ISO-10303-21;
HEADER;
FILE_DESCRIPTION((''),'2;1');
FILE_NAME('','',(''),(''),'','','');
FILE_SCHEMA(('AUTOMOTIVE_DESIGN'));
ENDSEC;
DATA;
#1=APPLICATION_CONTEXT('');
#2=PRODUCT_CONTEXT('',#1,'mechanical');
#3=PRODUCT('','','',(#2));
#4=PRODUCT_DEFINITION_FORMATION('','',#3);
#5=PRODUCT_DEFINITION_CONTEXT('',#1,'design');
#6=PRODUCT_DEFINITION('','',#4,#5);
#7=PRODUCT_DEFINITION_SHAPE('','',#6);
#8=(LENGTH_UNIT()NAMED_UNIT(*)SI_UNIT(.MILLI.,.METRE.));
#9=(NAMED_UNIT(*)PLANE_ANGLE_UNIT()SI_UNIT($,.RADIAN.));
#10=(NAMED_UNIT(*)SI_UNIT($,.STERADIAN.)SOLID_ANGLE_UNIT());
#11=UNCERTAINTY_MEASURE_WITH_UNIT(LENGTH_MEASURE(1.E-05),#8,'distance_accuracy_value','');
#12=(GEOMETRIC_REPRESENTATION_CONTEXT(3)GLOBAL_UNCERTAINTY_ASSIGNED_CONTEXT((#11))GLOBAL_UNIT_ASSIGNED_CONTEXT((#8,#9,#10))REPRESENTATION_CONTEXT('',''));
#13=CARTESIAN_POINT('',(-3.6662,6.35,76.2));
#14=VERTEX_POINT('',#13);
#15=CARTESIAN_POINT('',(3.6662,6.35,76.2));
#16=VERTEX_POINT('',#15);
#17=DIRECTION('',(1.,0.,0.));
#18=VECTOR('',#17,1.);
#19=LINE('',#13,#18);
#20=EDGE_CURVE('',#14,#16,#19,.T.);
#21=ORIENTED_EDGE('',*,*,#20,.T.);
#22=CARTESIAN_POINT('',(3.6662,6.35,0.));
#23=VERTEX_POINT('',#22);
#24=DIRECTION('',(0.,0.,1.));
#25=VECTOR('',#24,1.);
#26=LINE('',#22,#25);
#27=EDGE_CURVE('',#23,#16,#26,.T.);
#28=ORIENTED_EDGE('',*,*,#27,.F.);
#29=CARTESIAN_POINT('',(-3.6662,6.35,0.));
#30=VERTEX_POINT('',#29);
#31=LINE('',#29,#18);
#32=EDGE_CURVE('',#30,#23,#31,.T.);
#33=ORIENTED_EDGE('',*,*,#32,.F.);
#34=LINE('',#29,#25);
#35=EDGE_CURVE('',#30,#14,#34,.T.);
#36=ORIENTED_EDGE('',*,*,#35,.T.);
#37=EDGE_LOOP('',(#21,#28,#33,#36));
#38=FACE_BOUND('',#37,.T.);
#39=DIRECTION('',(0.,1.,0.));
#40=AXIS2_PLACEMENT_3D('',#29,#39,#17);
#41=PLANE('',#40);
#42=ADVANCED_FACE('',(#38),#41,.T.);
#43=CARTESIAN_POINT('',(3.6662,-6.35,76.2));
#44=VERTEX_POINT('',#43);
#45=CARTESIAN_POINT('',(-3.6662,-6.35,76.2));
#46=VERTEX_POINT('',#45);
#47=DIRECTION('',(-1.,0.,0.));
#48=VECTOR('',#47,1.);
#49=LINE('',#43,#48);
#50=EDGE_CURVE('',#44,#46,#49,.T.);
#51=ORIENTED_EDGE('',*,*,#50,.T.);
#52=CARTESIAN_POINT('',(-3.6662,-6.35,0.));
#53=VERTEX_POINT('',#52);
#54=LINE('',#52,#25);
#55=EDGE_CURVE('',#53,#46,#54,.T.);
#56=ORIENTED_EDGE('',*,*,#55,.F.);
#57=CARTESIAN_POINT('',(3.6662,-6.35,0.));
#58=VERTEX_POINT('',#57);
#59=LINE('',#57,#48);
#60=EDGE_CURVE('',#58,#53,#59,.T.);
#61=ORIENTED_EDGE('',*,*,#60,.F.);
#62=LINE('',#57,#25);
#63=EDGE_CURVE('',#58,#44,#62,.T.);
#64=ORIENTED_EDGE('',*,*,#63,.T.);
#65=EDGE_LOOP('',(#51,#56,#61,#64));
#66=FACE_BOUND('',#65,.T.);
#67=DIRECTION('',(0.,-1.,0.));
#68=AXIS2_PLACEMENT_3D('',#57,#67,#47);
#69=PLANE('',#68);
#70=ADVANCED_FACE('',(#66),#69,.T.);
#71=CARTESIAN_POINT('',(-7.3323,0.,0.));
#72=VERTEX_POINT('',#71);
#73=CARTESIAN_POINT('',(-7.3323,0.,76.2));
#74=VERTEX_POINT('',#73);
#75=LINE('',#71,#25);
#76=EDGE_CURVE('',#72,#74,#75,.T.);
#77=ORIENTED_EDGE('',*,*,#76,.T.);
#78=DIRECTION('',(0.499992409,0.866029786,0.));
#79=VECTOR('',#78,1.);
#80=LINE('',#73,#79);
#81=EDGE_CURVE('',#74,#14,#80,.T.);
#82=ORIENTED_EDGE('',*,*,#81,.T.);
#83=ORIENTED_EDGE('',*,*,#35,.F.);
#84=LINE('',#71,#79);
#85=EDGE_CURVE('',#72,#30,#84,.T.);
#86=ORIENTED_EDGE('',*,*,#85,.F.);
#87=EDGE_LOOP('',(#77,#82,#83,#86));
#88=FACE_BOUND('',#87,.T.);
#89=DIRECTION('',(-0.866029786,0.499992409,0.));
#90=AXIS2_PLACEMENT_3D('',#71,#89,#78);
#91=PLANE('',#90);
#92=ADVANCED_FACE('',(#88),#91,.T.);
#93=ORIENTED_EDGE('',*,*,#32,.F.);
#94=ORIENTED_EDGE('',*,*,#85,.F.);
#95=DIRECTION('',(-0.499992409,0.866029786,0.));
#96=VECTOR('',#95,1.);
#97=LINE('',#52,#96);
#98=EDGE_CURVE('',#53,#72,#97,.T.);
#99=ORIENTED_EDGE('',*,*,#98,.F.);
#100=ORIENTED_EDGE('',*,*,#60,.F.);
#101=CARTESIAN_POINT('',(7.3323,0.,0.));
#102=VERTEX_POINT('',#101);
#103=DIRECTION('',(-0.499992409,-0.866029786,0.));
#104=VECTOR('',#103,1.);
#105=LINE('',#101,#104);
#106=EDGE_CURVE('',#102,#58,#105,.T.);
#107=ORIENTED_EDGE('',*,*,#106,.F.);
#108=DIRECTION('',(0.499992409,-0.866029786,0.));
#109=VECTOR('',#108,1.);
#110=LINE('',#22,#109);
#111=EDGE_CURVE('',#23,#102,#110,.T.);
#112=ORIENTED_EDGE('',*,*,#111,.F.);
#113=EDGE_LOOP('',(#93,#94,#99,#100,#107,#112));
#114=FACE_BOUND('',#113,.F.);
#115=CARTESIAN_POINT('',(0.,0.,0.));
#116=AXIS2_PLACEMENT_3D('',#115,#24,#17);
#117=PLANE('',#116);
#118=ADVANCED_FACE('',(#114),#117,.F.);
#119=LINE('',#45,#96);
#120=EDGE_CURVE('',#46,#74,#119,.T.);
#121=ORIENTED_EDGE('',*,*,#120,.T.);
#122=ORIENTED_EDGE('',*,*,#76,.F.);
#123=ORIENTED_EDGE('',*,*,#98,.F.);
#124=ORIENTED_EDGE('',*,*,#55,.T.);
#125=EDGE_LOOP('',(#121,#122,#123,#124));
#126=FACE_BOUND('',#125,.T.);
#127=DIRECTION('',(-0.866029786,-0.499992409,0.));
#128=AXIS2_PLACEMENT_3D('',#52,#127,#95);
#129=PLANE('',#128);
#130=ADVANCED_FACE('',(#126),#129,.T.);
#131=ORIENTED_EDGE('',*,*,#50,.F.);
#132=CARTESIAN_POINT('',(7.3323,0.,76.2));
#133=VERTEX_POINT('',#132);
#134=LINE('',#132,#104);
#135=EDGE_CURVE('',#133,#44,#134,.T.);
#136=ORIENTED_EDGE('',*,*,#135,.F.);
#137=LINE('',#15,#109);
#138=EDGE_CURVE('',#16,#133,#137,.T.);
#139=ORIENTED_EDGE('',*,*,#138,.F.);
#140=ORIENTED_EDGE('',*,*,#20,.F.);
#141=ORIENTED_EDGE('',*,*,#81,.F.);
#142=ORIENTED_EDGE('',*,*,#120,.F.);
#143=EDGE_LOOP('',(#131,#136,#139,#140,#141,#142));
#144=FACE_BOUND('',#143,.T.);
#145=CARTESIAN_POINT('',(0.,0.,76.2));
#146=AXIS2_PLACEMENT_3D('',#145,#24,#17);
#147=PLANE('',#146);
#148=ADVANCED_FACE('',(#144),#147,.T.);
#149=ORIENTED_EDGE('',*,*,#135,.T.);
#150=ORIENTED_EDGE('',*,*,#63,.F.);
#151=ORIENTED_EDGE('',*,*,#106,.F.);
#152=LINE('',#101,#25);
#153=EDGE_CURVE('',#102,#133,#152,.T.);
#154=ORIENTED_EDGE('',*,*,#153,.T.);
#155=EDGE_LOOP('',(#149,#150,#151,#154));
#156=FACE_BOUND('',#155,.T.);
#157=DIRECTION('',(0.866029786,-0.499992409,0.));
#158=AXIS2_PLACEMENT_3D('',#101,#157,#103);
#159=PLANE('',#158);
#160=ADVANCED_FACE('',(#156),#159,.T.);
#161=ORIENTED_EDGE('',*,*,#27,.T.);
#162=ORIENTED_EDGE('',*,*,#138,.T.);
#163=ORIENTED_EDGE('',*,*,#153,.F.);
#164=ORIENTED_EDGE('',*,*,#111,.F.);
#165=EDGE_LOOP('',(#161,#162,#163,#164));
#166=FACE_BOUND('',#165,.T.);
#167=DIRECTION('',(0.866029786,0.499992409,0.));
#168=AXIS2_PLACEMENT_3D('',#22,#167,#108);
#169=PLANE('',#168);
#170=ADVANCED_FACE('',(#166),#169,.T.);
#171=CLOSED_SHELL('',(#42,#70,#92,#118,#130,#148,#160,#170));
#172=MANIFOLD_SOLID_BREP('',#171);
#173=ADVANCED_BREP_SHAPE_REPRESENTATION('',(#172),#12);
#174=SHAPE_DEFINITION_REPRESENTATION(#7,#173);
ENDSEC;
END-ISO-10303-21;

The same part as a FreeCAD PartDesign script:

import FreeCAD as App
import Part
import Sketcher
Q = App.Units.Quantity

doc = App.newDocument("Part")
body = doc.addObject("PartDesign::Body", "Body")

sketch1 = body.newObject("Sketcher::SketchObject", "Sketch")
sketch1.AttachmentSupport = (doc.getObject("XY_Plane"), [""])
sketch1.MapMode = "FlatFace"
sketch1.addGeometry(Part.LineSegment(App.Vector(7, 0, 0), App.Vector(4, 6, 0)), False)
sketch1.addGeometry(Part.LineSegment(App.Vector(4, 6, 0), App.Vector(-4, 6, 0)), False)
sketch1.addGeometry(Part.LineSegment(App.Vector(-4, 6, 0), App.Vector(-7, 0, 0)), False)
sketch1.addGeometry(Part.LineSegment(App.Vector(-7, 0, 0), App.Vector(-4, -6, 0)), False)
sketch1.addGeometry(Part.LineSegment(App.Vector(-4, -6, 0), App.Vector(4, -6, 0)), False)
sketch1.addGeometry(Part.LineSegment(App.Vector(4, -6, 0), App.Vector(7, 0, 0)), False)
sketch1.addConstraint(Sketcher.Constraint("Coincident", 0, 2, 1, 1))
sketch1.addConstraint(Sketcher.Constraint("Coincident", 1, 2, 2, 1))
sketch1.addConstraint(Sketcher.Constraint("Coincident", 2, 2, 3, 1))
sketch1.addConstraint(Sketcher.Constraint("Coincident", 3, 2, 4, 1))
sketch1.addConstraint(Sketcher.Constraint("Coincident", 4, 2, 5, 1))
sketch1.addConstraint(Sketcher.Constraint("Coincident", 5, 2, 0, 1))
sketch1.addConstraint(Sketcher.Constraint("Horizontal", 1))
sketch1.addConstraint(Sketcher.Constraint("Horizontal", 4))
sketch1.addConstraint(Sketcher.Constraint("Symmetric", 0, 2, 3, 2, -1, 1))
sketch1.addConstraint(Sketcher.Constraint("Symmetric", 2, 2, 5, 2, -1, 1))
sketch1.addConstraint(Sketcher.Constraint("PointOnObject", 2, 2, -1))
sketch1.addConstraint(Sketcher.Constraint("Parallel", 2, 5))
sketch1.addConstraint(Sketcher.Constraint("Vertical", 1, 2, 3, 2))
sketch1.addConstraint(Sketcher.Constraint("DistanceY", 3, 2, 1, 2, Q("0.5 in")))
sketch1.addConstraint(Sketcher.Constraint("Angle", 0, Q("119.9995 deg")))
sketch1.addConstraint(Sketcher.Constraint("DistanceX", 2, 2, 0, 2, Q("0.433 in")))
pad1 = body.newObject("PartDesign::Pad", "Pad")
pad1.Profile = sketch1
pad1.Length = Q("3 in")

doc.recompute()
